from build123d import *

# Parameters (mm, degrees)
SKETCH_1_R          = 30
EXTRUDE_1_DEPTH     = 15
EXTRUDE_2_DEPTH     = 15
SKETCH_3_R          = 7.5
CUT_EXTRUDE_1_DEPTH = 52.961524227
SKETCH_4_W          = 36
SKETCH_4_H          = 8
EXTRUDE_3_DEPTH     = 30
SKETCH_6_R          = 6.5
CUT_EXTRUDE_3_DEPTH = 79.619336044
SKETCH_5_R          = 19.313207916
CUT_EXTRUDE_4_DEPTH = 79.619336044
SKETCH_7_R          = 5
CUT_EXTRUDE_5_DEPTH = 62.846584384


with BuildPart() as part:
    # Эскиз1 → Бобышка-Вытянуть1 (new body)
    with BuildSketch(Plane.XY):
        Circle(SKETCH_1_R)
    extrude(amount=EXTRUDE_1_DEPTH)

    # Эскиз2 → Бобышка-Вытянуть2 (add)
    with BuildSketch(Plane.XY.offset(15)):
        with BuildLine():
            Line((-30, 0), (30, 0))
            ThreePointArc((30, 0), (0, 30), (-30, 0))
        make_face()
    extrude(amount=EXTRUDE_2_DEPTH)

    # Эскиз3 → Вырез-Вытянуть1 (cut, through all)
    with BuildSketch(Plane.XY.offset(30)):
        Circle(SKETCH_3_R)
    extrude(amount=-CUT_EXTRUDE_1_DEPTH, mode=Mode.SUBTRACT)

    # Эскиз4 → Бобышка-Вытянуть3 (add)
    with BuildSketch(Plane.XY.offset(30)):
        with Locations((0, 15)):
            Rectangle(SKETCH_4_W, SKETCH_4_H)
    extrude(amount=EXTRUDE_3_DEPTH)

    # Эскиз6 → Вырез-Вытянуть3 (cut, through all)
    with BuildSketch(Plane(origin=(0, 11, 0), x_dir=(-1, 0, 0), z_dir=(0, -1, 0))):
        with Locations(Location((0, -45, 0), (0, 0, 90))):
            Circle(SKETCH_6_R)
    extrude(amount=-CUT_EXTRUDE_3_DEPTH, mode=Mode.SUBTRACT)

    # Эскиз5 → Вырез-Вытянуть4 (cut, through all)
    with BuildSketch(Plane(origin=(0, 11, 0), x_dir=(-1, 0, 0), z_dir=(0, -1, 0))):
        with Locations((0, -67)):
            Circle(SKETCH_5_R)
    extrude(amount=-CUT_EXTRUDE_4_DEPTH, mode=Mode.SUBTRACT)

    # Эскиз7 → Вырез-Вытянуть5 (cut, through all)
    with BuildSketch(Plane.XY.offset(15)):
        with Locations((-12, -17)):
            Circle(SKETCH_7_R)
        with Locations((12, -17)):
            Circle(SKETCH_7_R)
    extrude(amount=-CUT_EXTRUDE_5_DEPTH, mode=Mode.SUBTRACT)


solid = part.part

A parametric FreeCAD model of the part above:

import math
import FreeCAD as App
import Part
import Sketcher
from FreeCAD import Vector
Q = App.Units.Quantity

doc = App.newDocument("Part")
body = doc.addObject("PartDesign::Body", "Body")

# Sketch on XY plane
sketch1 = body.newObject("Sketcher::SketchObject", "Sketch")
sketch1.AttachmentSupport = (doc.getObject("XY_Plane"), [""])
sketch1.MapMode = "FlatFace"
sketch1.addGeometry(Part.Circle(Vector(0, 0, 0), Vector(0, 0, 1), 30), False)
sketch1.addConstraint([
    Sketcher.Constraint("Coincident", 0, 3, -1, 1),
    Sketcher.Constraint("Diameter", 0, Q("60 mm")),
])
pad1 = body.newObject("PartDesign::Pad", "Pad")
pad1.Profile = sketch1
pad1.Length = 15

# Sketch on XY plane
sketch2 = body.newObject("Sketcher::SketchObject", "Sketch001")
sketch2.AttachmentSupport = (doc.getObject("XY_Plane"), [""])
sketch2.MapMode = "FlatFace"
sketch2.AttachmentOffset = App.Placement(Vector(0, 0, 15), App.Rotation())
sketch2.addGeometry([
    Part.LineSegment(Vector(-30, 0, 0), Vector(30, 0, 0)),
    Part.ArcOfCircle(Part.Circle(Vector(0, 0, 0), Vector(0, 0, 1), 30), math.radians(0), math.radians(180)),
], False)
sketch2.addConstraint([
    Sketcher.Constraint("Coincident", 0, 1, 1, 2),
    Sketcher.Constraint("Coincident", 1, 1, 0, 2),
    Sketcher.Constraint("Horizontal", 0),
    Sketcher.Constraint("Coincident", 1, 3, -1, 1),
    Sketcher.Constraint("PointOnObject", 0, 1, -1),
    Sketcher.Constraint("Radius", 1, Q("30 mm")),
])
pad2 = body.newObject("PartDesign::Pad", "Pad001")
pad2.Profile = sketch2
pad2.Length = 15

# Sketch on XY plane
sketch3 = body.newObject("Sketcher::SketchObject", "Sketch002")
sketch3.AttachmentSupport = (doc.getObject("XY_Plane"), [""])
sketch3.MapMode = "FlatFace"
sketch3.AttachmentOffset = App.Placement(Vector(0, 0, 30), App.Rotation())
sketch3.addGeometry(Part.Circle(Vector(0, 0, 0), Vector(0, 0, 1), 8), False)
sketch3.addConstraint([
    Sketcher.Constraint("Coincident", 0, 3, -1, 1),
    Sketcher.Constraint("Diameter", 0, Q("15 mm")),
])
pocket1 = body.newObject("PartDesign::Pocket", "Pocket")
pocket1.Profile = sketch3
pocket1.Type = "ThroughAll"

# Sketch on XY plane
sketch4 = body.newObject("Sketcher::SketchObject", "Sketch003")
sketch4.AttachmentSupport = (doc.getObject("XY_Plane"), [""])
sketch4.MapMode = "FlatFace"
sketch4.AttachmentOffset = App.Placement(Vector(0, 0, 30), App.Rotation())
sketch4.addGeometry([
    Part.LineSegment(Vector(-18, 19, 0), Vector(-18, 11, 0)),
    Part.LineSegment(Vector(-18, 11, 0), Vector(18, 11, 0)),
    Part.LineSegment(Vector(18, 11, 0), Vector(18, 19, 0)),
    Part.LineSegment(Vector(18, 19, 0), Vector(-18, 19, 0)),
], False)
sketch4.addConstraint([
    Sketcher.Constraint("Coincident", 0, 2, 1, 1),
    Sketcher.Constraint("Coincident", 1, 2, 2, 1),
    Sketcher.Constraint("Coincident", 2, 2, 3, 1),
    Sketcher.Constraint("Coincident", 3, 2, 0, 1),
    Sketcher.Constraint("Vertical", 0),
    Sketcher.Constraint("Horizontal", 1),
    Sketcher.Constraint("Vertical", 2),
    Sketcher.Constraint("Horizontal", 3),
    Sketcher.Constraint("DistanceX", 1, 1, 1, 2, Q("36 mm")),
    Sketcher.Constraint("DistanceY", 0, 2, 0, 1, Q("8 mm")),
    Sketcher.Constraint("DistanceX", 0, 2, -1, 1, Q("18 mm")),
    Sketcher.Constraint("DistanceY", -1, 1, 0, 2, Q("11 mm")),
])
pad3 = body.newObject("PartDesign::Pad", "Pad002")
pad3.Profile = sketch4
pad3.Length = 30

# Sketch on XZ plane
sketch5 = body.newObject("Sketcher::SketchObject", "Sketch004")
sketch5.AttachmentSupport = (doc.getObject("XZ_Plane"), [""])
sketch5.MapMode = "FlatFace"
sketch5.AttachmentOffset = App.Placement(Vector(0, 0, -11), App.Rotation())
sketch5.addGeometry(Part.Circle(Vector(0, 45, 0), Vector(0, 0, 1), 6), False)
sketch5.addConstraint([
    Sketcher.Constraint("PointOnObject", 0, 3, -2),
    Sketcher.Constraint("Diameter", 0, Q("13 mm")),
    Sketcher.Constraint("DistanceY", -1, 1, 0, 3, Q("45 mm")),
])
pocket2 = body.newObject("PartDesign::Pocket", "Pocket001")
pocket2.Profile = sketch5
pocket2.Type = "ThroughAll"

# Sketch on XZ plane
sketch6 = body.newObject("Sketcher::SketchObject", "Sketch005")
sketch6.AttachmentSupport = (doc.getObject("XZ_Plane"), [""])
sketch6.MapMode = "FlatFace"
sketch6.AttachmentOffset = App.Placement(Vector(0, 0, -11), App.Rotation())
sketch6.addGeometry(Part.Circle(Vector(0, 67, 0), Vector(0, 0, 1), 19), False)
sketch6.addConstraint([
    Sketcher.Constraint("PointOnObject", 0, 3, -2),
    Sketcher.Constraint("DistanceY", -1, 1, 0, 3, Q("67 mm")),
    Sketcher.Constraint("Diameter", 0, Q("38.626416 mm")),
])
pocket3 = body.newObject("PartDesign::Pocket", "Pocket002")
pocket3.Profile = sketch6
pocket3.Type = "ThroughAll"

# Sketch on XY plane
sketch7 = body.newObject("Sketcher::SketchObject", "Sketch006")
sketch7.AttachmentSupport = (doc.getObject("XY_Plane"), [""])
sketch7.MapMode = "FlatFace"
sketch7.AttachmentOffset = App.Placement(Vector(0, 0, 15), App.Rotation())
sketch7.addGeometry([
    Part.Circle(Vector(-12, -17, 0), Vector(0, 0, 1), 5),
    Part.Circle(Vector(12, -17, 0), Vector(0, 0, 1), 5),
], False)
sketch7.addConstraint([
    Sketcher.Constraint("Equal", 0, 1),
    Sketcher.Constraint("Symmetric", 0, 3, 1, 3, -2),
    Sketcher.Constraint("Diameter", 0, Q("10 mm")),
    Sketcher.Constraint("DistanceX", 0, 3, -1, 1, Q("12 mm")),
    Sketcher.Constraint("DistanceY", 0, 3, -1, 1, Q("17 mm")),
])
pocket4 = body.newObject("PartDesign::Pocket", "Pocket003")
pocket4.Profile = sketch7
pocket4.Type = "ThroughAll"

doc.recompute()
